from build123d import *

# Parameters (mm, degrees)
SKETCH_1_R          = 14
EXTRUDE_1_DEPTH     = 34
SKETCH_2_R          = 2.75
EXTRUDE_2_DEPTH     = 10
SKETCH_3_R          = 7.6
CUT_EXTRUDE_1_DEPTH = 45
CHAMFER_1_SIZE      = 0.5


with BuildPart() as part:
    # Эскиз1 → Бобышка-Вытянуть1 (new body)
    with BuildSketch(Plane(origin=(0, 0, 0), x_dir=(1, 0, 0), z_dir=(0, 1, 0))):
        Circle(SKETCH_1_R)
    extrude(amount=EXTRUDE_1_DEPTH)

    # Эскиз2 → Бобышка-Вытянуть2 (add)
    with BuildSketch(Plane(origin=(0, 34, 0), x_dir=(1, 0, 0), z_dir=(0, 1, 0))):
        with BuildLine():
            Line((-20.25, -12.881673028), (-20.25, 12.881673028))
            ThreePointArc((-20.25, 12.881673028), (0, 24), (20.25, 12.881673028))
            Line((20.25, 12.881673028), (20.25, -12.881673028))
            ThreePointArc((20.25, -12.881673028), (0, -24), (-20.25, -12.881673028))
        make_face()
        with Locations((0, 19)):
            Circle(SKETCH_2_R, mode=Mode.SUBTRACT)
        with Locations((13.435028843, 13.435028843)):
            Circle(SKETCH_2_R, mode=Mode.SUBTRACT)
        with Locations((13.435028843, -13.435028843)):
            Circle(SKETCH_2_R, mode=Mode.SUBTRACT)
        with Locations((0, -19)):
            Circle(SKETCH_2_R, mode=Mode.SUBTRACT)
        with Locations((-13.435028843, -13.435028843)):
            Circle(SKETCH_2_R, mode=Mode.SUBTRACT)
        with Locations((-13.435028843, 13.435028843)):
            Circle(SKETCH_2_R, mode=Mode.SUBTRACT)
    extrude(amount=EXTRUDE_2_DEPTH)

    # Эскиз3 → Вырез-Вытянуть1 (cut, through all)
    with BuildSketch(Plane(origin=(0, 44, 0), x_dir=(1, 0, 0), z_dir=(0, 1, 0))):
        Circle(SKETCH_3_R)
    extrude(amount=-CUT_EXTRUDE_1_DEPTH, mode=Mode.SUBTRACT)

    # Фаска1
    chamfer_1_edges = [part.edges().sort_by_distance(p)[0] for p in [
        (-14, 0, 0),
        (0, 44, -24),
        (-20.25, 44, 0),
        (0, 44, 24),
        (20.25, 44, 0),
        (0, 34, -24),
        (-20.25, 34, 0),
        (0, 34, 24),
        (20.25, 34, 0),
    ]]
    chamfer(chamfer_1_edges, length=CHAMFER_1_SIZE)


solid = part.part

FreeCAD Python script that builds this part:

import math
import FreeCAD as App
import Part
import Sketcher
from FreeCAD import Vector
Q = App.Units.Quantity


def edges_at(feature, points):
    """Names of the edges that pass closest to the given points."""
    edges = feature.Shape.Edges
    near = lambda p: min(range(len(edges)), key=lambda i: edges[i].distToShape(Part.Vertex(*p))[0])
    return sorted({f"Edge{near(p) + 1}" for p in points})

doc = App.newDocument("Part")
body = doc.addObject("PartDesign::Body", "Body")

# Sketch on XZ plane
sketch1 = body.newObject("Sketcher::SketchObject", "Sketch")
sketch1.AttachmentSupport = (doc.getObject("XZ_Plane"), [""])
sketch1.MapMode = "FlatFace"
sketch1.addGeometry(Part.Circle(Vector(0, 0, 0), Vector(0, 0, 1), 14), False)
sketch1.addConstraint([
    Sketcher.Constraint("Coincident", 0, 3, -1, 1),
    Sketcher.Constraint("Diameter", 0, Q("28 mm")),
])
pad1 = body.newObject("PartDesign::Pad", "Pad")
pad1.Profile = sketch1
pad1.Length = 34
pad1.Reversed = True

# Sketch on XZ plane
sketch2 = body.newObject("Sketcher::SketchObject", "Sketch001")
sketch2.AttachmentSupport = (doc.getObject("XZ_Plane"), [""])
sketch2.MapMode = "FlatFace"
sketch2.AttachmentOffset = App.Placement(Vector(0, 0, -34), App.Rotation())
sketch2.addGeometry([
    Part.LineSegment(Vector(-20.2, -12.9, 0), Vector(-20.2, 12.9, 0)),  # 0
    Part.ArcOfCircle(Part.Circle(Vector(0, 0, 0), Vector(0, 0, 1), 24), math.radians(32), math.radians(148)),  # 1
    Part.LineSegment(Vector(20.2, 12.9, 0), Vector(20.2, -12.9, 0)),  # 2
    Part.ArcOfCircle(Part.Circle(Vector(0, 0, 0), Vector(0, 0, 1), 24), math.radians(-148), math.radians(-32)),  # 3
    Part.Circle(Vector(13.4, 13.4, 0), Vector(0, 0, 1), 2.8),  # 4
    Part.Circle(Vector(0, 19, 0), Vector(0, 0, 1), 2.8),  # 5
    Part.Circle(Vector(-13.4, 13.4, 0), Vector(0, 0, 1), 2.8),  # 6
    Part.Circle(Vector(13.4, -13.4, 0), Vector(0, 0, 1), 2.8),  # 7
    Part.Circle(Vector(0, -19, 0), Vector(0, 0, 1), 2.8),  # 8
    Part.Circle(Vector(-13.4, -13.4, 0), Vector(0, 0, 1), 2.8),  # 9
], False)
sketch2.addConstraint([
    Sketcher.Constraint("Coincident", 0, 2, 1, 2),
    Sketcher.Constraint("Coincident", 1, 1, 2, 1),
    Sketcher.Constraint("Coincident", 2, 2, 3, 2),
    Sketcher.Constraint("Coincident", 3, 1, 0, 1),
    Sketcher.Constraint("Vertical", 0),
    Sketcher.Constraint("Vertical", 2),
    Sketcher.Constraint("Coincident", 1, 3, -1, 1),
    Sketcher.Constraint("Coincident", 3, 3, -1, 1),
    Sketcher.Constraint("Equal", 1, 3),
    Sketcher.Constraint("Equal", 4, 5),
    Sketcher.Constraint("Equal", 5, 6),
    Sketcher.Constraint("Equal", 6, 7),
    Sketcher.Constraint("Equal", 7, 8),
    Sketcher.Constraint("Equal", 8, 9),
    Sketcher.Constraint("Symmetric", 6, 3, 7, 3, -1, 1),
    Sketcher.Constraint("Symmetric", 5, 3, 8, 3, -1, 1),
    Sketcher.Constraint("Symmetric", 4, 3, 9, 3, -1, 1),
    Sketcher.Constraint("Symmetric", 4, 3, 6, 3, -2),
    Sketcher.Constraint("PointOnObject", 5, 3, -2),
    Sketcher.Constraint("Horizontal", 0, 2, 1, 1),
    Sketcher.Constraint("Radius", 1, Q("24 mm")),
    Sketcher.Constraint("Diameter", 4, Q("5.5 mm")),
    Sketcher.Constraint("DistanceY", -1, 1, 5, 3, Q("19 mm")),
    Sketcher.Constraint("DistanceX", 0, 2, -1, 1, Q("20.25 mm")),
    Sketcher.Constraint("DistanceY", 9, 3, 0, 2, Q("26.316702 mm")),
    Sketcher.Constraint("DistanceX", -1, 1, 4, 3, Q("13.435029 mm")),
])
pad2 = body.newObject("PartDesign::Pad", "Pad001")
pad2.Profile = sketch2
pad2.Length = 10
pad2.Reversed = True

# Sketch on XZ plane
sketch3 = body.newObject("Sketcher::SketchObject", "Sketch002")
sketch3.AttachmentSupport = (doc.getObject("XZ_Plane"), [""])
sketch3.MapMode = "FlatFace"
sketch3.AttachmentOffset = App.Placement(Vector(0, 0, -44), App.Rotation())
sketch3.addGeometry(Part.Circle(Vector(0, 0, 0), Vector(0, 0, 1), 8), False)
sketch3.addConstraint([
    Sketcher.Constraint("Coincident", 0, 3, -1, 1),
    Sketcher.Constraint("Diameter", 0, Q("15.2 mm")),
])
pocket1 = body.newObject("PartDesign::Pocket", "Pocket")
pocket1.Profile = sketch3
pocket1.Type = "ThroughAll"
pocket1.Reversed = True
doc.recompute()

chamfer = body.newObject("PartDesign::Chamfer", "Chamfer")
chamfer.Base = (pocket1, edges_at(pocket1, [
    (-14, 0, 0),
    (0, 44, -24),
    (-20.25, 44, 0),
    (0, 44, 24),
    (20.25, 44, 0),
    (0, 34, -24),
    (-20.25, 34, 0),
    (0, 34, 24),
    (20.25, 34, 0),
]))
chamfer.Size = 0.5

doc.recompute()
